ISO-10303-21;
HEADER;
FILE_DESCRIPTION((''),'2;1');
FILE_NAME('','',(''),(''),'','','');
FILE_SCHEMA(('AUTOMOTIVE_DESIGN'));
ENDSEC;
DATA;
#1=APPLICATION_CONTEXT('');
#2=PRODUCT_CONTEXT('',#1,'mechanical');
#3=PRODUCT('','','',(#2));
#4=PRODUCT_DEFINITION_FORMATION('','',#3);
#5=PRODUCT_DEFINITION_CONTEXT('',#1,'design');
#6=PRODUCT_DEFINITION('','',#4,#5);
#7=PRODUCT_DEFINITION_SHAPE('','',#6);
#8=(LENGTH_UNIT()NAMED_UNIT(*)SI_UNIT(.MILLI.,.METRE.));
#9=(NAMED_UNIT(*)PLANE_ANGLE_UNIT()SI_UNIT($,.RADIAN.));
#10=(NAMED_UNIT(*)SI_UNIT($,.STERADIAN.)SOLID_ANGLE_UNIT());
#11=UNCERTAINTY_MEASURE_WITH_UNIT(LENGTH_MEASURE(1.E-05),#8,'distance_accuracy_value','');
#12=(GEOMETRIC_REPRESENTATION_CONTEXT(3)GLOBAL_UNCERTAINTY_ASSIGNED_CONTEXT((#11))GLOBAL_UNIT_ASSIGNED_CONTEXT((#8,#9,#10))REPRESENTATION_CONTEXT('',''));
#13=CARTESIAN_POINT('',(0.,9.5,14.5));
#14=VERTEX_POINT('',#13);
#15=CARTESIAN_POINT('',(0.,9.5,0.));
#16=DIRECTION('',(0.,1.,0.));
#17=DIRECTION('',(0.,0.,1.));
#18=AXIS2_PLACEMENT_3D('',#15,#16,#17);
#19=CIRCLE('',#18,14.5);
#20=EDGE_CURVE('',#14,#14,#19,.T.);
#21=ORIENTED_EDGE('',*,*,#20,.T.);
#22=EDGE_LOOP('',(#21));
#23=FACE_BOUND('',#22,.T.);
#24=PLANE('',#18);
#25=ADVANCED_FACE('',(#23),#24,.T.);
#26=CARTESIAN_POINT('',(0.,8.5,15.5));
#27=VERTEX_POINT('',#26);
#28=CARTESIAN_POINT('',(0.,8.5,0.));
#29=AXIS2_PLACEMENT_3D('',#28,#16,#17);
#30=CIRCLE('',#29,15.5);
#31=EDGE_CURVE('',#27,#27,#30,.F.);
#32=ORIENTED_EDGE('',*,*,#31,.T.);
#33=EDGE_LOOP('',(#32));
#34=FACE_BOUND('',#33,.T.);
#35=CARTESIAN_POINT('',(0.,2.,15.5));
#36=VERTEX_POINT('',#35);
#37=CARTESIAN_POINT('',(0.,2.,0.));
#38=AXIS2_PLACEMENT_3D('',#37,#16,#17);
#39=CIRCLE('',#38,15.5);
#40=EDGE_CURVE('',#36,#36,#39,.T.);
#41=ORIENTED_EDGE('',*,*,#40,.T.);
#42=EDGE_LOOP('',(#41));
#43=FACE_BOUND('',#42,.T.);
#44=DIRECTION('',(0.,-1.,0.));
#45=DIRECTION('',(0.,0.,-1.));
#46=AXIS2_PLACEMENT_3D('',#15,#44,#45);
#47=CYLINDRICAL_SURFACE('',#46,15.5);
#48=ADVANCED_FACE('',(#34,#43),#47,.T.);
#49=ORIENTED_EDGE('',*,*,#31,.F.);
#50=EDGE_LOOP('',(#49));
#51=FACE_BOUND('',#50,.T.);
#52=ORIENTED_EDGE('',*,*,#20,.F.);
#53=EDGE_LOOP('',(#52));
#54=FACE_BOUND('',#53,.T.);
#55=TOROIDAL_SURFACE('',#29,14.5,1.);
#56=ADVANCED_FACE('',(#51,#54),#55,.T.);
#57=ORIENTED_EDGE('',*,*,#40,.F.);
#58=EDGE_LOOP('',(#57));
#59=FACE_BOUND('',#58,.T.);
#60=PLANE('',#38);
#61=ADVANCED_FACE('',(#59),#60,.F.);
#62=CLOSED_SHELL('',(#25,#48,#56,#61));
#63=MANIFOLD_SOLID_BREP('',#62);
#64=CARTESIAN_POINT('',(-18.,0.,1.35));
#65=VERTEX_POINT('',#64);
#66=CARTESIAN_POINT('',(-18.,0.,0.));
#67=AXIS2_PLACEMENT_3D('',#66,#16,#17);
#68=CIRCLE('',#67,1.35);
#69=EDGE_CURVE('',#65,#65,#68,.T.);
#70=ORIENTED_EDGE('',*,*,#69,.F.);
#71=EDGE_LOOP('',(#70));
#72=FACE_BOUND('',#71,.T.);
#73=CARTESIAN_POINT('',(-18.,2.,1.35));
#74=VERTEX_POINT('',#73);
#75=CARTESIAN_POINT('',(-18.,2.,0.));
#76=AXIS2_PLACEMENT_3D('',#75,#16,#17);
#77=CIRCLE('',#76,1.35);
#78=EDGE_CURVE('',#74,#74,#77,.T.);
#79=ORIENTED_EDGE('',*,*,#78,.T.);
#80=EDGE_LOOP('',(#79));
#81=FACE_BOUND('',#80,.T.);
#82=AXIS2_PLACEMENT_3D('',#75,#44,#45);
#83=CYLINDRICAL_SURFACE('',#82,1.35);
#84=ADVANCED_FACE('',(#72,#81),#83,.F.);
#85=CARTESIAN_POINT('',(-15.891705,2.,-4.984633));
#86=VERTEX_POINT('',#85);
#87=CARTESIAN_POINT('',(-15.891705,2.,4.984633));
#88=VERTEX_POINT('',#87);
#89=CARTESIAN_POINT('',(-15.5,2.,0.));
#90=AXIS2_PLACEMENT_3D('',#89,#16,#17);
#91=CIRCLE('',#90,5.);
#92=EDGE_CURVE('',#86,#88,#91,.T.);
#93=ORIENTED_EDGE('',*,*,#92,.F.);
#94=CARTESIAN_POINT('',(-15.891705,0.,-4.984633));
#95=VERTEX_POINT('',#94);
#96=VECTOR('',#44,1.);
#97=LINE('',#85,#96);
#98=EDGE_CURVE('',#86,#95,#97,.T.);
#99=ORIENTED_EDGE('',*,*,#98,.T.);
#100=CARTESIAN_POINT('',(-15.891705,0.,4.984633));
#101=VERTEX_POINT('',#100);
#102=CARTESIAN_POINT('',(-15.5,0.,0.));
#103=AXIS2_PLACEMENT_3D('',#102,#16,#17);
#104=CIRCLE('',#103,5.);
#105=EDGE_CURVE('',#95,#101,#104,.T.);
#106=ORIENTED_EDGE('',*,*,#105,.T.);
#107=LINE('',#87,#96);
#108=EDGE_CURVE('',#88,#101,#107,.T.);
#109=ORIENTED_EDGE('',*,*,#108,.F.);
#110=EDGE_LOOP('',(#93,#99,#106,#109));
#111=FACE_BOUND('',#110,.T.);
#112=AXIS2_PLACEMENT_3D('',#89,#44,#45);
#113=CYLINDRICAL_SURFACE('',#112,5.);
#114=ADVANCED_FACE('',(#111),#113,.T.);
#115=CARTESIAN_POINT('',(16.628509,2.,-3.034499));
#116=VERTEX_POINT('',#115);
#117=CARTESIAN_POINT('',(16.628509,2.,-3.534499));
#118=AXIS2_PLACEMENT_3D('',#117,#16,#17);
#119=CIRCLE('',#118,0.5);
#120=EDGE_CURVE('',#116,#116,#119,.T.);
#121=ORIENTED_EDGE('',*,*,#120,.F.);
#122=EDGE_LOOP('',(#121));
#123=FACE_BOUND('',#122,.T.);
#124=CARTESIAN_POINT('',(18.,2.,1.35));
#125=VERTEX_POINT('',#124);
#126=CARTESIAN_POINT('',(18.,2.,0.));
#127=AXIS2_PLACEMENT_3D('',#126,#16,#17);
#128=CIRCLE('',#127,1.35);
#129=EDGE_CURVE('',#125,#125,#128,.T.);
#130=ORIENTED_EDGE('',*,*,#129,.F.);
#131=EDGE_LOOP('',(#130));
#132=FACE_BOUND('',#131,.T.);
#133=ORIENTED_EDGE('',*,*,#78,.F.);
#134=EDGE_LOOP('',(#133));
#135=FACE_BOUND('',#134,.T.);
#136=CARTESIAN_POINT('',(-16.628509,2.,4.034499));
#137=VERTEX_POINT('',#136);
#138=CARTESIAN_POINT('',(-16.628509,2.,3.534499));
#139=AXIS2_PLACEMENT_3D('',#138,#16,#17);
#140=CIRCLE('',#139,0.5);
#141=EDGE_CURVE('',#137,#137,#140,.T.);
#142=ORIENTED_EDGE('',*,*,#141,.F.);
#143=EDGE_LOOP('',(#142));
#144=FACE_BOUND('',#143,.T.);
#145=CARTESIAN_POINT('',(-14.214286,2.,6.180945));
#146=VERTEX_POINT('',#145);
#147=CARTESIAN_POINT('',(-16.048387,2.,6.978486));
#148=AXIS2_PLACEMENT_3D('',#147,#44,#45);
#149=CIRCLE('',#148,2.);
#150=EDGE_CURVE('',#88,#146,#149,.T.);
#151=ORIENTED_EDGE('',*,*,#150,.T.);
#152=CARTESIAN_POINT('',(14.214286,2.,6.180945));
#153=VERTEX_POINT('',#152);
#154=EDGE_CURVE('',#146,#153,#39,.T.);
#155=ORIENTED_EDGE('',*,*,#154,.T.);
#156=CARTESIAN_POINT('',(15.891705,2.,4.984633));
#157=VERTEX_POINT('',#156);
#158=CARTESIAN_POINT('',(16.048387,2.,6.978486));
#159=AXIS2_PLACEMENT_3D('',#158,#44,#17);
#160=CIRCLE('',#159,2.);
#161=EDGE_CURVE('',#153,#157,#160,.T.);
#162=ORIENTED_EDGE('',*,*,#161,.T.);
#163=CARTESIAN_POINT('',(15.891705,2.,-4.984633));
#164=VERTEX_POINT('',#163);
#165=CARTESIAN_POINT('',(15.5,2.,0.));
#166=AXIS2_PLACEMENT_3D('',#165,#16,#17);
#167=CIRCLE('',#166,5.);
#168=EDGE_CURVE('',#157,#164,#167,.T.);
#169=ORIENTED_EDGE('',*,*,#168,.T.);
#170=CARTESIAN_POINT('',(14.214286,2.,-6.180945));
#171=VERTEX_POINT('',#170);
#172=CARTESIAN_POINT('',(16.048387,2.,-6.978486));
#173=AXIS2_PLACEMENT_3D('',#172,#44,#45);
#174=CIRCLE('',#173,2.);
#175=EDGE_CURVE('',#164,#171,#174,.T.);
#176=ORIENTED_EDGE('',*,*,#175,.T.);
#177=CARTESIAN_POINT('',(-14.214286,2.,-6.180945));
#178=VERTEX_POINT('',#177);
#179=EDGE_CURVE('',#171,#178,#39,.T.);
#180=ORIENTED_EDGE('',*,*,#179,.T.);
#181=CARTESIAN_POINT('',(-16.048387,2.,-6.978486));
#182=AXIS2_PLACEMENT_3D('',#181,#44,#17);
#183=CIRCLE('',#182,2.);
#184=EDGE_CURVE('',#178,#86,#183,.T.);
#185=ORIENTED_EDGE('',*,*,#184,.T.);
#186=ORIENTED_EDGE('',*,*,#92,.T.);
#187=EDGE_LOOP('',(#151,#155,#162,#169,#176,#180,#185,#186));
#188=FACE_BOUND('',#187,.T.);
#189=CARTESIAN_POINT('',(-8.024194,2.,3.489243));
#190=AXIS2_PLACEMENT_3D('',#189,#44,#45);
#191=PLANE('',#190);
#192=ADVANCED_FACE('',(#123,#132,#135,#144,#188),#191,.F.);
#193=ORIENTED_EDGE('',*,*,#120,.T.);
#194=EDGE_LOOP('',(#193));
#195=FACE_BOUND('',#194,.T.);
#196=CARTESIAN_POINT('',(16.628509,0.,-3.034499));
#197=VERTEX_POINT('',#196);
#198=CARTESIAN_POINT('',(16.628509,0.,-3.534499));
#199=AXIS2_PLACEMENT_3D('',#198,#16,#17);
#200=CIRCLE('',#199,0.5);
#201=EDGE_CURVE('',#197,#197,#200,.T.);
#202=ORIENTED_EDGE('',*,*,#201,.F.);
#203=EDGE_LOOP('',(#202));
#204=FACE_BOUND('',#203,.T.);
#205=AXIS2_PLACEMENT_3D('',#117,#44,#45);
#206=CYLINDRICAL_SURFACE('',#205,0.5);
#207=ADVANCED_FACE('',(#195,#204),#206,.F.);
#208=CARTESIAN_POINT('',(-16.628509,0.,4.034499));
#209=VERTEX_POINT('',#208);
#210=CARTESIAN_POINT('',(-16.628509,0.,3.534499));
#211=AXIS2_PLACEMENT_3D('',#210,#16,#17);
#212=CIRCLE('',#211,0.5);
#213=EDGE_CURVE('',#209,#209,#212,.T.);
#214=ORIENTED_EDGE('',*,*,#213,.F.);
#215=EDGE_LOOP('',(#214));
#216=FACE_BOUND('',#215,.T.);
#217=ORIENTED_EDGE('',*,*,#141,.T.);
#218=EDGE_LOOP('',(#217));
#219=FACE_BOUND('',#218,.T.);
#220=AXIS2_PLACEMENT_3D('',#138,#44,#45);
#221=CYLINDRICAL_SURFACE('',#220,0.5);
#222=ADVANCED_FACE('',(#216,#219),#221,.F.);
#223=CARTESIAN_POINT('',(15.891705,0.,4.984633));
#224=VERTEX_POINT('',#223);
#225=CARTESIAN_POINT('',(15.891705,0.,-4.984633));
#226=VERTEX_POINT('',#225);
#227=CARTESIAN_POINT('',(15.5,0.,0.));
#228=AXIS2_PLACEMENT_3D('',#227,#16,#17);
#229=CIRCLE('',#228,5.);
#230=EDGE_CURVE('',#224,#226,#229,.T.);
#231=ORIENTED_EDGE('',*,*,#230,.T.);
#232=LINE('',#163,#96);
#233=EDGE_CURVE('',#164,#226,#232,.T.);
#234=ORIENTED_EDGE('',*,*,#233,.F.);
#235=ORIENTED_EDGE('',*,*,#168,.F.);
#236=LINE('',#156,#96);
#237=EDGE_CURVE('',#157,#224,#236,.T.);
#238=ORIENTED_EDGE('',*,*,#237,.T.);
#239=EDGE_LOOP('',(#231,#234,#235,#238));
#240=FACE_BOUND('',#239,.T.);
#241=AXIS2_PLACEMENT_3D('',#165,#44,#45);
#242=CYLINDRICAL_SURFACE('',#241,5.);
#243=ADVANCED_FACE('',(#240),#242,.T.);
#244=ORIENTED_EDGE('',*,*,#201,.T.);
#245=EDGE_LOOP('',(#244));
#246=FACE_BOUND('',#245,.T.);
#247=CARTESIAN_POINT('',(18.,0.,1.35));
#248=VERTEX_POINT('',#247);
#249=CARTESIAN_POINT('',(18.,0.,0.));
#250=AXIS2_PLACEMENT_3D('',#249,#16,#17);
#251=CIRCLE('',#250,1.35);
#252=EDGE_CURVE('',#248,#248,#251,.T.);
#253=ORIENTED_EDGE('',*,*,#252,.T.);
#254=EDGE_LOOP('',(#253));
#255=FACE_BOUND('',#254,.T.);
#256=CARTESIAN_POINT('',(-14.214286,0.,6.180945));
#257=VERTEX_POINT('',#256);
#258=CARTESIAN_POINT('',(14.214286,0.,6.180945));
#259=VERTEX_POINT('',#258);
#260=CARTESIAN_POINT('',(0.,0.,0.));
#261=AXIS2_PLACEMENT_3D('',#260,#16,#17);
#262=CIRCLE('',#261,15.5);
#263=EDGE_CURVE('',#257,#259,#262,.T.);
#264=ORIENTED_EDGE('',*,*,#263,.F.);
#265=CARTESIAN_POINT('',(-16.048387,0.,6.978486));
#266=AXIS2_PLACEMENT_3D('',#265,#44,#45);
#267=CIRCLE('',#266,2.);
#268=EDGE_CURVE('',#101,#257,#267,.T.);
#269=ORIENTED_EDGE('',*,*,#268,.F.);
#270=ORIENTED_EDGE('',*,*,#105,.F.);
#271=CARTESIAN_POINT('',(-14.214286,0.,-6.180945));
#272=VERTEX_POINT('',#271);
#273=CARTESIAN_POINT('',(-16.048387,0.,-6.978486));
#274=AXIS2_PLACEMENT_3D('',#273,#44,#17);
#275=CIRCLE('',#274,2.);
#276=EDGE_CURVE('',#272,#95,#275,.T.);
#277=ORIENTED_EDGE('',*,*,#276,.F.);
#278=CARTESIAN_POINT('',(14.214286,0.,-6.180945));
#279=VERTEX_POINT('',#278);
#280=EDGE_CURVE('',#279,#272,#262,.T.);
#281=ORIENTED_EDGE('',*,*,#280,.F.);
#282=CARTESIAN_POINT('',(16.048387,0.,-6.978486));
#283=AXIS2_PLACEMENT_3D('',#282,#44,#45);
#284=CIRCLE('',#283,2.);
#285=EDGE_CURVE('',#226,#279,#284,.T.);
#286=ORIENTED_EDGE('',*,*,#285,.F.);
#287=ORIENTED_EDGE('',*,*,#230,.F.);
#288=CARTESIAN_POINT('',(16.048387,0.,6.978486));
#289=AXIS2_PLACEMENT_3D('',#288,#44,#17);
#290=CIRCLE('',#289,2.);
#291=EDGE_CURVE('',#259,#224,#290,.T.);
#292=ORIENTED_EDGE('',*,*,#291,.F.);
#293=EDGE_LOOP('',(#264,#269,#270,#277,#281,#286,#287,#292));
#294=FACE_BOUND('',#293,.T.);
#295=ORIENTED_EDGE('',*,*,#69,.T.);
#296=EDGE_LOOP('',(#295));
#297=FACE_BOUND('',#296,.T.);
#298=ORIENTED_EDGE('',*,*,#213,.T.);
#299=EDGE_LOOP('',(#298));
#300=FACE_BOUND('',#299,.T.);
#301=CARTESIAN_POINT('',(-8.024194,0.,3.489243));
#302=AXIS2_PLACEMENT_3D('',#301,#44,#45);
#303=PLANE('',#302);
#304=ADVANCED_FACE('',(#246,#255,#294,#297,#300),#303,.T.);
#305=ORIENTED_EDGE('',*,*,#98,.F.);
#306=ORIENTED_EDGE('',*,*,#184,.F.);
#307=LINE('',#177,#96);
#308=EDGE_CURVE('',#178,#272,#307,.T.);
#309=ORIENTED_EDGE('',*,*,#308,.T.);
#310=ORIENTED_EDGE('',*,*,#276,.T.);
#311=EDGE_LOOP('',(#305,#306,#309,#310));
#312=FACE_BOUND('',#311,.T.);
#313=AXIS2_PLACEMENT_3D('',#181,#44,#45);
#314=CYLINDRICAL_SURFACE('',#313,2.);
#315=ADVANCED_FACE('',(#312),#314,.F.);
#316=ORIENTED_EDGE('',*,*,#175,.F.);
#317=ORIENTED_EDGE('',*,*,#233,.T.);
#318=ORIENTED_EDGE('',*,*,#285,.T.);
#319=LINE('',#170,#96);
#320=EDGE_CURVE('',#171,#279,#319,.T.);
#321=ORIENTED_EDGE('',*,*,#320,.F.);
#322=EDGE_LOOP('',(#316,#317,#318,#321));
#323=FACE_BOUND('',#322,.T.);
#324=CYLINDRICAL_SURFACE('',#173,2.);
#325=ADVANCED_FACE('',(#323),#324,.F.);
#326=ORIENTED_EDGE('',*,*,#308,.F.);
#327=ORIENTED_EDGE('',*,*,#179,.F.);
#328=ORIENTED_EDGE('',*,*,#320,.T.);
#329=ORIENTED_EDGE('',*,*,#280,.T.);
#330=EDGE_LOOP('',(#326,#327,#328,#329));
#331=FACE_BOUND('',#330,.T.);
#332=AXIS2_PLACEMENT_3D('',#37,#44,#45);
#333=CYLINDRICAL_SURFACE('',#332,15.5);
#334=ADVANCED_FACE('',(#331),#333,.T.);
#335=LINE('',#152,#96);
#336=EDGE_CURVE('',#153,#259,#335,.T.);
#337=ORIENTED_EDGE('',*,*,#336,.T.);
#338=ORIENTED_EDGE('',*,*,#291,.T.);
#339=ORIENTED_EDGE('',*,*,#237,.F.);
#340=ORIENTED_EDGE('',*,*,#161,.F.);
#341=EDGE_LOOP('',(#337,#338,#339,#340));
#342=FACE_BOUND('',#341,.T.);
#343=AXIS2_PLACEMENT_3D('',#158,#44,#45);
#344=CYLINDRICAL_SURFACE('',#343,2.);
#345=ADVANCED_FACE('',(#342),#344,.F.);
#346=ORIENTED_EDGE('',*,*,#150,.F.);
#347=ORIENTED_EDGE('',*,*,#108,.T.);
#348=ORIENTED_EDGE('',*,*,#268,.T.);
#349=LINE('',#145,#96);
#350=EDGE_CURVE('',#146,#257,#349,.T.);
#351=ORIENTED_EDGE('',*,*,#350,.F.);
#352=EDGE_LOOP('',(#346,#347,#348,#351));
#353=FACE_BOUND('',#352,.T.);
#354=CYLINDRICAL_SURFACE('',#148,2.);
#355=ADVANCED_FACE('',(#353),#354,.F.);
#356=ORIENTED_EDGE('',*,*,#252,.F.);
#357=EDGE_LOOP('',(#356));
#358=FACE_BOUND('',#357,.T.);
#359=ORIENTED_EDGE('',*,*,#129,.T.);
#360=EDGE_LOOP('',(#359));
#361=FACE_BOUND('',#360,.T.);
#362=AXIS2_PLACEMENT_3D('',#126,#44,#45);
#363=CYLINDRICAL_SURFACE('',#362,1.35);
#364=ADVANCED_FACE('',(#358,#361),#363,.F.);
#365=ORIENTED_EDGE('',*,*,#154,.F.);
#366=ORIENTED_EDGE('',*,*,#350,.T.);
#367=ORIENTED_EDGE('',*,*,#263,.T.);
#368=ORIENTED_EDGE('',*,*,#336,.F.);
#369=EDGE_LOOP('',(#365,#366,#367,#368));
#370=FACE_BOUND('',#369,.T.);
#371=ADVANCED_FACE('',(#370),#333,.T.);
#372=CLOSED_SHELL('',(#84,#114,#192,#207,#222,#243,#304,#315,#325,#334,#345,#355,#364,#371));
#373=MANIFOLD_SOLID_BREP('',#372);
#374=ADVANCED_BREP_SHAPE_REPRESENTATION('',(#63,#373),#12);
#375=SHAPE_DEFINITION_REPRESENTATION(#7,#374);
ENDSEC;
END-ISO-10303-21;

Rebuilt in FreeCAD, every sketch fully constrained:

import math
import FreeCAD as App
import Part
import Sketcher
from FreeCAD import Vector
Q = App.Units.Quantity


def edges_at(feature, points):
    """Names of the edges that pass closest to the given points."""
    edges = feature.Shape.Edges
    near = lambda p: min(range(len(edges)), key=lambda i: edges[i].distToShape(Part.Vertex(*p))[0])
    return sorted({f"Edge{near(p) + 1}" for p in points})

doc = App.newDocument("Part")
body = doc.addObject("PartDesign::Body", "Body")

# Sketch on XZ plane
sketch1 = body.newObject("Sketcher::SketchObject", "Sketch")
sketch1.AttachmentSupport = (doc.getObject("XZ_Plane"), [""])
sketch1.MapMode = "FlatFace"
sketch1.addGeometry([
    Part.ArcOfCircle(Part.Circle(Vector(0, 0, 0), Vector(0, 0, 1), 15.5), math.radians(24), math.radians(156)),  # 0
    Part.ArcOfCircle(Part.Circle(Vector(16, 7, 0), Vector(0, 0, 1), 2), math.radians(-156), math.radians(-94)),  # 1
    Part.ArcOfCircle(Part.Circle(Vector(15.5, 0, 0), Vector(0, 0, 1), 5), math.radians(-86), math.radians(86)),  # 2
    Part.ArcOfCircle(Part.Circle(Vector(16, -7, 0), Vector(0, 0, 1), 2), math.radians(94), math.radians(156)),  # 3
    Part.ArcOfCircle(Part.Circle(Vector(0, 0, 0), Vector(0, 0, 1), 15.5), math.radians(-156), math.radians(-24)),  # 4
    Part.ArcOfCircle(Part.Circle(Vector(-16, -7, 0), Vector(0, 0, 1), 2), math.radians(24), math.radians(86)),  # 5
    Part.ArcOfCircle(Part.Circle(Vector(-15.5, 0, 0), Vector(0, 0, 1), 5), math.radians(94), math.radians(266)),  # 6
    Part.ArcOfCircle(Part.Circle(Vector(-16, 7, 0), Vector(0, 0, 1), 2), math.radians(-86), math.radians(-24)),  # 7
    Part.Circle(Vector(-16.6, 3.5, 0), Vector(0, 0, 1), 0.5),  # 8
    Part.Circle(Vector(-18, 0, 0), Vector(0, 0, 1), 1.4),  # 9
    Part.Circle(Vector(18, 0, 0), Vector(0, 0, 1), 1.4),  # 10
    Part.Circle(Vector(16.6, -3.5, 0), Vector(0, 0, 1), 0.5),  # 11
], False)
sketch1.addConstraint([
    Sketcher.Constraint("Tangent", 0, 1, 1, 1),
    Sketcher.Constraint("Tangent", 1, 2, 2, 2),
    Sketcher.Constraint("Tangent", 2, 1, 3, 1),
    Sketcher.Constraint("Tangent", 3, 2, 4, 2),
    Sketcher.Constraint("Tangent", 4, 1, 5, 1),
    Sketcher.Constraint("Tangent", 5, 2, 6, 2),
    Sketcher.Constraint("Tangent", 6, 1, 7, 1),
    Sketcher.Constraint("Tangent", 7, 2, 0, 2),
    Sketcher.Constraint("Coincident", 0, 3, -1, 1),
    Sketcher.Constraint("Coincident", 4, 3, -1, 1),
    Sketcher.Constraint("Equal", 1, 3),
    Sketcher.Constraint("Equal", 0, 4),
    Sketcher.Constraint("Equal", 3, 5),
    Sketcher.Constraint("Equal", 2, 6),
    Sketcher.Constraint("Equal", 5, 7),
    Sketcher.Constraint("Equal", 9, 10),
    Sketcher.Constraint("Equal", 8, 11),
    Sketcher.Constraint("Symmetric", 2, 3, 6, 3, -1, 1),
    Sketcher.Constraint("Symmetric", 9, 3, 10, 3, -1, 1),
    Sketcher.Constraint("Symmetric", 8, 3, 11, 3, -1, 1),
    Sketcher.Constraint("PointOnObject", 2, 3, -1),
    Sketcher.Constraint("PointOnObject", 9, 3, -1),
    Sketcher.Constraint("Diameter", 8, Q("1 mm")),
    Sketcher.Constraint("Radius", 1, Q("2 mm")),
    Sketcher.Constraint("Radius", 2, Q("5 mm")),
    Sketcher.Constraint("Diameter", 9, Q("2.7 mm")),
    Sketcher.Constraint("Radius", 0, Q("15.5 mm")),
    Sketcher.Constraint("DistanceX", 9, 3, -1, 1, Q("18 mm")),
    Sketcher.Constraint("DistanceX", 6, 3, 2, 3, Q("31 mm")),
    Sketcher.Constraint("DistanceY", -1, 1, 8, 3, Q("3.534499 mm")),
    Sketcher.Constraint("DistanceX", 8, 3, -1, 1, Q("16.628509 mm")),
])
pad1 = body.newObject("PartDesign::Pad", "Pad")
pad1.Profile = sketch1
pad1.Length = 2
pad1.Reversed = True
body2 = doc.addObject("PartDesign::Body", "Body001")

# Sketch on XZ plane
sketch2 = body2.newObject("Sketcher::SketchObject", "Sketch001")
sketch2.AttachmentSupport = (doc.getObject("XZ_Plane001"), [""])
sketch2.MapMode = "FlatFace"
sketch2.AttachmentOffset = App.Placement(Vector(0, 0, -2), App.Rotation())
sketch2.addGeometry(Part.Circle(Vector(0, 0, 0), Vector(0, 0, 1), 16), False)
sketch2.addConstraint([
    Sketcher.Constraint("Coincident", 0, 3, -1, 1),
    Sketcher.Constraint("Diameter", 0, Q("31 mm")),
])
pad2 = body2.newObject("PartDesign::Pad", "Pad001")
pad2.Profile = sketch2
pad2.Length = 7.5
pad2.Reversed = True
doc.recompute()

fillet = body2.newObject("PartDesign::Fillet", "Fillet")
fillet.Base = (pad2, edges_at(pad2, [(0, 9.5, -15.5)]))
fillet.Radius = 1

doc.recompute()
